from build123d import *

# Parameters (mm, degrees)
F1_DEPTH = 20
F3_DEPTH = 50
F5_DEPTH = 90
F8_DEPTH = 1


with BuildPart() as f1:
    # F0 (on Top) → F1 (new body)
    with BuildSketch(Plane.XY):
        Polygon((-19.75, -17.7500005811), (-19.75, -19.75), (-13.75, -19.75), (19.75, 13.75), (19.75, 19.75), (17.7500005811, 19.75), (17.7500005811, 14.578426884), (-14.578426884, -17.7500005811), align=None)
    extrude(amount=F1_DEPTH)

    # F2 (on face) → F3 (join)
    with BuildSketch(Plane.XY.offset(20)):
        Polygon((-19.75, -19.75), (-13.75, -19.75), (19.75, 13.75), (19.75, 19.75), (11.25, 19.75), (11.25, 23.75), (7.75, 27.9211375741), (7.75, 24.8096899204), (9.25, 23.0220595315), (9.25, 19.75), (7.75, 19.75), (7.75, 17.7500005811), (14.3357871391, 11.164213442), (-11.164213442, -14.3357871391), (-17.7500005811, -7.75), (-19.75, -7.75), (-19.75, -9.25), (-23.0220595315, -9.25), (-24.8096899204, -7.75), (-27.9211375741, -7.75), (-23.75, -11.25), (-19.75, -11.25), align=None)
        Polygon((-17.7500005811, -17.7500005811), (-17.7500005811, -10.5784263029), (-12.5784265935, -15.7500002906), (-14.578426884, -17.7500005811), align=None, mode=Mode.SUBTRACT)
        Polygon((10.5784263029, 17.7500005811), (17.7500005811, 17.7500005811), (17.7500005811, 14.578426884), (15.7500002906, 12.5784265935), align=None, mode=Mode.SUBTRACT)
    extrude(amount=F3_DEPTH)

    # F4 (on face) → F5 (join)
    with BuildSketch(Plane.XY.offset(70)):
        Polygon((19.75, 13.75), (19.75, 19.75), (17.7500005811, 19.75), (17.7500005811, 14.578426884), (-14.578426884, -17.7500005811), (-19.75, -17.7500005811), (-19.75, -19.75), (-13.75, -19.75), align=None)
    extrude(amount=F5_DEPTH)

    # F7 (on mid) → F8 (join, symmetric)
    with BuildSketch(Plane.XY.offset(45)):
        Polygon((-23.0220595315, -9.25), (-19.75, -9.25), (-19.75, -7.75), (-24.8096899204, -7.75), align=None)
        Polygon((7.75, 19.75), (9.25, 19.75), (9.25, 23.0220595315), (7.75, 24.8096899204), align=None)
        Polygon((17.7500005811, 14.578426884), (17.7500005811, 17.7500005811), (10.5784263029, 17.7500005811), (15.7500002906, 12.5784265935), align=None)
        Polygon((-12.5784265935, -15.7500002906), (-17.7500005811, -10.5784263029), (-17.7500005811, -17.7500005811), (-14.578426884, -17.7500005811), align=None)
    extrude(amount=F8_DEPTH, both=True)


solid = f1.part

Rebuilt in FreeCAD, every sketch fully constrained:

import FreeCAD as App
import Part
import Sketcher
from FreeCAD import Vector
Q = App.Units.Quantity

doc = App.newDocument("Part")
body = doc.addObject("PartDesign::Body", "Body")

# Sketch on XY plane
sketch1 = doc.addObject("Sketcher::SketchObject", "Sketch")
body.addObject(sketch1)
sketch1.AttachmentSupport = (doc.XY_Plane, [""])
sketch1.MapMode = "FlatFace"
sketch1.addGeometry([
    Part.LineSegment(Vector(-19.8, -17.8, 0), Vector(-19.8, -19.8, 0)),  # 0
    Part.LineSegment(Vector(-19.8, -19.8, 0), Vector(-13.8, -19.8, 0)),  # 1
    Part.LineSegment(Vector(-13.8, -19.8, 0), Vector(19.8, 13.8, 0)),  # 2
    Part.LineSegment(Vector(19.8, 13.8, 0), Vector(19.8, 19.8, 0)),  # 3
    Part.LineSegment(Vector(19.8, 19.8, 0), Vector(17.8, 19.8, 0)),  # 4
    Part.LineSegment(Vector(17.8, 19.8, 0), Vector(17.8, 14.6, 0)),  # 5
    Part.LineSegment(Vector(17.8, 14.6, 0), Vector(-14.6, -17.8, 0)),  # 6
    Part.LineSegment(Vector(-14.6, -17.8, 0), Vector(-19.8, -17.8, 0)),  # 7
], False)
sketch1.addConstraint([
    Sketcher.Constraint("Coincident", 0, 2, 1, 1),
    Sketcher.Constraint("Coincident", 1, 2, 2, 1),
    Sketcher.Constraint("Coincident", 2, 2, 3, 1),
    Sketcher.Constraint("Coincident", 3, 2, 4, 1),
    Sketcher.Constraint("Coincident", 4, 2, 5, 1),
    Sketcher.Constraint("Coincident", 5, 2, 6, 1),
    Sketcher.Constraint("Coincident", 6, 2, 7, 1),
    Sketcher.Constraint("Coincident", 7, 2, 0, 1),
    Sketcher.Constraint("Vertical", 0),
    Sketcher.Constraint("Horizontal", 1),
    Sketcher.Constraint("Vertical", 3),
    Sketcher.Constraint("Horizontal", 4),
    Sketcher.Constraint("Vertical", 5),
    Sketcher.Constraint("Horizontal", 7),
    Sketcher.Constraint("Symmetric", 0, 2, 3, 2, -1, 1),
    Sketcher.Constraint("Parallel", 2, 6),
    Sketcher.Constraint("Equal", 4, 0),
    Sketcher.Constraint("Equal", 1, 3),
    Sketcher.Constraint("Equal", 7, 5),
    Sketcher.Constraint("DistanceX", 1, 1, 1, 2, Q("6 mm")),
    Sketcher.Constraint("DistanceX", 4, 2, 4, 1, Q("1.999999 mm")),
    Sketcher.Constraint("DistanceX", 1, 2, 2, 2, Q("33.5 mm")),
    Sketcher.Constraint("Distance", 6, Q("45.719301 mm")),
])
pad1 = doc.addObject("PartDesign::Pad", "Pad")
body.addObject(pad1)
pad1.Profile = sketch1
pad1.Length = 20

# Sketch on XY plane
sketch2 = doc.addObject("Sketcher::SketchObject", "Sketch001")
body.addObject(sketch2)
sketch2.AttachmentSupport = (doc.XY_Plane, [""])
sketch2.MapMode = "FlatFace"
sketch2.AttachmentOffset = App.Placement(Vector(0, 0, 20), App.Rotation())
sketch2.addGeometry([
    Part.LineSegment(Vector(-19.8, -19.8, 0), Vector(-13.8, -19.8, 0)),  # 0
    Part.LineSegment(Vector(-13.8, -19.8, 0), Vector(19.8, 13.8, 0)),  # 1
    Part.LineSegment(Vector(19.8, 13.8, 0), Vector(19.8, 19.8, 0)),  # 2
    Part.LineSegment(Vector(19.8, 19.8, 0), Vector(11.2, 19.8, 0)),  # 3
    Part.LineSegment(Vector(11.2, 19.8, 0), Vector(11.2, 23.8, 0)),  # 4
    Part.LineSegment(Vector(11.2, 23.8, 0), Vector(7.8, 27.9, 0)),  # 5
    Part.LineSegment(Vector(7.8, 27.9, 0), Vector(7.8, 24.8, 0)),  # 6
    Part.LineSegment(Vector(7.8, 24.8, 0), Vector(9.2, 23, 0)),  # 7
    Part.LineSegment(Vector(9.2, 23, 0), Vector(9.2, 19.8, 0)),  # 8
    Part.LineSegment(Vector(9.2, 19.8, 0), Vector(7.8, 19.8, 0)),  # 9
    Part.LineSegment(Vector(7.8, 19.8, 0), Vector(7.8, 17.8, 0)),  # 10
    Part.LineSegment(Vector(7.8, 17.8, 0), Vector(14.3, 11.2, 0)),  # 11
    Part.LineSegment(Vector(14.3, 11.2, 0), Vector(-11.2, -14.3, 0)),  # 12
    Part.LineSegment(Vector(-11.2, -14.3, 0), Vector(-17.8, -7.8, 0)),  # 13
    Part.LineSegment(Vector(-17.8, -7.8, 0), Vector(-19.8, -7.8, 0)),  # 14
    Part.LineSegment(Vector(-19.8, -7.8, 0), Vector(-19.8, -9.2, 0)),  # 15
    Part.LineSegment(Vector(-19.8, -9.2, 0), Vector(-23, -9.2, 0)),  # 16
    Part.LineSegment(Vector(-23, -9.2, 0), Vector(-24.8, -7.8, 0)),  # 17
    Part.LineSegment(Vector(-24.8, -7.8, 0), Vector(-27.9, -7.8, 0)),  # 18
    Part.LineSegment(Vector(-27.9, -7.8, 0), Vector(-23.8, -11.2, 0)),  # 19
    Part.LineSegment(Vector(-23.8, -11.2, 0), Vector(-19.8, -11.2, 0)),  # 20
    Part.LineSegment(Vector(-19.8, -11.2, 0), Vector(-19.8, -19.8, 0)),  # 21
    Part.LineSegment(Vector(-14.6, -17.8, 0), Vector(-17.8, -17.8, 0)),  # 22
    Part.LineSegment(Vector(-17.8, -17.8, 0), Vector(-17.8, -10.6, 0)),  # 23
    Part.LineSegment(Vector(-17.8, -10.6, 0), Vector(-12.6, -15.8, 0)),  # 24
    Part.LineSegment(Vector(-12.6, -15.8, 0), Vector(-14.6, -17.8, 0)),  # 25
    Part.LineSegment(Vector(15.8, 12.6, 0), Vector(10.6, 17.8, 0)),  # 26
    Part.LineSegment(Vector(10.6, 17.8, 0), Vector(17.8, 17.8, 0)),  # 27
    Part.LineSegment(Vector(17.8, 17.8, 0), Vector(17.8, 14.6, 0)),  # 28
    Part.LineSegment(Vector(17.8, 14.6, 0), Vector(15.8, 12.6, 0)),  # 29
], False)
sketch2.addConstraint([
    Sketcher.Constraint("Coincident", 0, 2, 1, 1),
    Sketcher.Constraint("Coincident", 1, 2, 2, 1),
    Sketcher.Constraint("Coincident", 2, 2, 3, 1),
    Sketcher.Constraint("Coincident", 3, 2, 4, 1),
    Sketcher.Constraint("Coincident", 4, 2, 5, 1),
    Sketcher.Constraint("Coincident", 5, 2, 6, 1),
    Sketcher.Constraint("Coincident", 6, 2, 7, 1),
    Sketcher.Constraint("Coincident", 7, 2, 8, 1),
    Sketcher.Constraint("Coincident", 8, 2, 9, 1),
    Sketcher.Constraint("Coincident", 9, 2, 10, 1),
    Sketcher.Constraint("Coincident", 10, 2, 11, 1),
    Sketcher.Constraint("Coincident", 11, 2, 12, 1),
    Sketcher.Constraint("Coincident", 12, 2, 13, 1),
    Sketcher.Constraint("Coincident", 13, 2, 14, 1),
    Sketcher.Constraint("Coincident", 14, 2, 15, 1),
    Sketcher.Constraint("Coincident", 15, 2, 16, 1),
    Sketcher.Constraint("Coincident", 16, 2, 17, 1),
    Sketcher.Constraint("Coincident", 17, 2, 18, 1),
    Sketcher.Constraint("Coincident", 18, 2, 19, 1),
    Sketcher.Constraint("Coincident", 19, 2, 20, 1),
    Sketcher.Constraint("Coincident", 20, 2, 21, 1),
    Sketcher.Constraint("Coincident", 21, 2, 0, 1),
    Sketcher.Constraint("Coincident", 22, 2, 23, 1),
    Sketcher.Constraint("Coincident", 23, 2, 24, 1),
    Sketcher.Constraint("Coincident", 24, 2, 25, 1),
    Sketcher.Constraint("Coincident", 25, 2, 22, 1),
    Sketcher.Constraint("Coincident", 26, 2, 27, 1),
    Sketcher.Constraint("Coincident", 27, 2, 28, 1),
    Sketcher.Constraint("Coincident", 28, 2, 29, 1),
    Sketcher.Constraint("Coincident", 29, 2, 26, 1),
    Sketcher.Constraint("Horizontal", 0),
    Sketcher.Constraint("Vertical", 2),
    Sketcher.Constraint("Horizontal", 3),
    Sketcher.Constraint("Vertical", 4),
    Sketcher.Constraint("Vertical", 6),
    Sketcher.Constraint("Vertical", 8),
    Sketcher.Constraint("Horizontal", 9),
    Sketcher.Constraint("Vertical", 10),
    Sketcher.Constraint("Horizontal", 14),
    Sketcher.Constraint("Vertical", 15),
    Sketcher.Constraint("Horizontal", 16),
    Sketcher.Constraint("Horizontal", 18),
    Sketcher.Constraint("Horizontal", 20),
    Sketcher.Constraint("Vertical", 21),
    Sketcher.Constraint("Horizontal", 22),
    Sketcher.Constraint("Vertical", 23),
    Sketcher.Constraint("Horizontal", 27),
    Sketcher.Constraint("Vertical", 28),
    Sketcher.Constraint("Symmetric", 2, 2, 21, 2, -1, 1),
    Sketcher.Constraint("Symmetric", 22, 2, 27, 2, -1, 1),
    Sketcher.Constraint("Parallel", 5, 7),
    Sketcher.Constraint("Perpendicular", 1, 11),
    Sketcher.Constraint("Perpendicular", 11, 12),
    Sketcher.Constraint("Perpendicular", 12, 13),
    Sketcher.Constraint("Parallel", 17, 19),
    Sketcher.Constraint("Parallel", 13, 24),
    Sketcher.Constraint("Perpendicular", 24, 25),
    Sketcher.Constraint("Perpendicular", 25, 26),
    Sketcher.Constraint("Perpendicular", 26, 29),
    Sketcher.Constraint("Horizontal", 3, 2, 8, 2),
    Sketcher.Constraint("Horizontal", 14, 2, 17, 2),
    Sketcher.Constraint("Horizontal", 10, 2, 26, 2),
    Sketcher.Constraint("Vertical", 6, 2, 9, 2),
    Sketcher.Constraint("Vertical", 15, 2, 20, 2),
    Sketcher.Constraint("Vertical", 13, 2, 22, 2),
    Sketcher.Constraint("Equal", 0, 2),
    Sketcher.Constraint("Equal", 20, 4),
    Sketcher.Constraint("Equal", 18, 6),
    Sketcher.Constraint("Equal", 16, 8),
    Sketcher.Constraint("Equal", 14, 10),
    Sketcher.Constraint("Equal", 9, 15),
    Sketcher.Constraint("Equal", 3, 21),
    Sketcher.Constraint("Equal", 27, 23),
    Sketcher.Constraint("Equal", 22, 28),
    Sketcher.Constraint("Equal", 11, 13),
    Sketcher.Constraint("Equal", 7, 17),
    Sketcher.Constraint("DistanceX", 0, 1, 0, 2, Q("6 mm")),
    Sketcher.Constraint("DistanceX", 14, 2, 14, 1, Q("1.999999 mm")),
    Sketcher.Constraint("DistanceX", 20, 1, 20, 2, Q("4 mm")),
    Sketcher.Constraint("Angle", 5, Q("130 deg")),
    Sketcher.Constraint("DistanceX", 3, 2, 3, 1, Q("8.5 mm")),
    Sketcher.Constraint("DistanceX", 9, 2, 9, 1, Q("1.5 mm")),
    Sketcher.Constraint("DistanceX", 0, 2, 3, 2, Q("25 mm")),
    Sketcher.Constraint("DistanceX", 5, 2, 2, 2, Q("12 mm")),
    Sketcher.Constraint("DistanceY", 0, 2, 24, 2, Q("4 mm")),
    Sketcher.Constraint("DistanceX", 16, 2, 16, 1, Q("3.27206 mm")),
    Sketcher.Constraint("Distance", 11, Q("9.313709 mm")),
    Sketcher.Constraint("Distance", 24, Q("7.31371 mm")),
])
pad2 = doc.addObject("PartDesign::Pad", "Pad001")
body.addObject(pad2)
pad2.Profile = sketch2
pad2.Length = 50

# Sketch on XY plane
sketch3 = doc.addObject("Sketcher::SketchObject", "Sketch002")
body.addObject(sketch3)
sketch3.AttachmentSupport = (doc.XY_Plane, [""])
sketch3.MapMode = "FlatFace"
sketch3.AttachmentOffset = App.Placement(Vector(0, 0, 70), App.Rotation())
sketch3.addGeometry([
    Part.LineSegment(Vector(19.8, 13.8, 0), Vector(19.8, 19.8, 0)),  # 0
    Part.LineSegment(Vector(19.8, 19.8, 0), Vector(17.8, 19.8, 0)),  # 1
    Part.LineSegment(Vector(17.8, 19.8, 0), Vector(17.8, 14.6, 0)),  # 2
    Part.LineSegment(Vector(17.8, 14.6, 0), Vector(-14.6, -17.8, 0)),  # 3
    Part.LineSegment(Vector(-14.6, -17.8, 0), Vector(-19.8, -17.8, 0)),  # 4
    Part.LineSegment(Vector(-19.8, -17.8, 0), Vector(-19.8, -19.8, 0)),  # 5
    Part.LineSegment(Vector(-19.8, -19.8, 0), Vector(-13.8, -19.8, 0)),  # 6
    Part.LineSegment(Vector(-13.8, -19.8, 0), Vector(19.8, 13.8, 0)),  # 7
], False)
sketch3.addConstraint([
    Sketcher.Constraint("Coincident", 0, 2, 1, 1),
    Sketcher.Constraint("Coincident", 1, 2, 2, 1),
    Sketcher.Constraint("Coincident", 2, 2, 3, 1),
    Sketcher.Constraint("Coincident", 3, 2, 4, 1),
    Sketcher.Constraint("Coincident", 4, 2, 5, 1),
    Sketcher.Constraint("Coincident", 5, 2, 6, 1),
    Sketcher.Constraint("Coincident", 6, 2, 7, 1),
    Sketcher.Constraint("Coincident", 7, 2, 0, 1),
    Sketcher.Constraint("Vertical", 0),
    Sketcher.Constraint("Horizontal", 1),
    Sketcher.Constraint("Vertical", 2),
    Sketcher.Constraint("Horizontal", 4),
    Sketcher.Constraint("Vertical", 5),
    Sketcher.Constraint("Horizontal", 6),
    Sketcher.Constraint("Symmetric", 0, 2, 5, 2, -1, 1),
    Sketcher.Constraint("Parallel", 3, 7),
    Sketcher.Constraint("Equal", 6, 0),
    Sketcher.Constraint("Equal", 4, 2),
    Sketcher.Constraint("Equal", 1, 5),
    Sketcher.Constraint("DistanceX", 1, 2, 1, 1, Q("1.999999 mm")),
    Sketcher.Constraint("DistanceX", 6, 1, 6, 2, Q("6 mm")),
    Sketcher.Constraint("DistanceY", 3, 2, 1, 2, Q("37.500001 mm")),
    Sketcher.Constraint("Distance", 3, Q("45.719301 mm")),
])
pad3 = doc.addObject("PartDesign::Pad", "Pad002")
body.addObject(pad3)
pad3.Profile = sketch3
pad3.Length = 90

# Sketch on XY plane
sketch4 = doc.addObject("Sketcher::SketchObject", "Sketch003")
body.addObject(sketch4)
sketch4.AttachmentSupport = (doc.XY_Plane, [""])
sketch4.MapMode = "FlatFace"
sketch4.AttachmentOffset = App.Placement(Vector(0, 0, 45), App.Rotation())
sketch4.addGeometry([
    Part.LineSegment(Vector(-23, -9.2, 0), Vector(-19.8, -9.2, 0)),  # 0
    Part.LineSegment(Vector(-19.8, -9.2, 0), Vector(-19.8, -7.8, 0)),  # 1
    Part.LineSegment(Vector(-19.8, -7.8, 0), Vector(-24.8, -7.8, 0)),  # 2
    Part.LineSegment(Vector(-24.8, -7.8, 0), Vector(-23, -9.2, 0)),  # 3
    Part.LineSegment(Vector(7.8, 19.8, 0), Vector(9.2, 19.8, 0)),  # 4
    Part.LineSegment(Vector(9.2, 19.8, 0), Vector(9.2, 23, 0)),  # 5
    Part.LineSegment(Vector(9.2, 23, 0), Vector(7.8, 24.8, 0)),  # 6
    Part.LineSegment(Vector(7.8, 24.8, 0), Vector(7.8, 19.8, 0)),  # 7
    Part.LineSegment(Vector(17.8, 14.6, 0), Vector(17.8, 17.8, 0)),  # 8
    Part.LineSegment(Vector(17.8, 17.8, 0), Vector(10.6, 17.8, 0)),  # 9
    Part.LineSegment(Vector(10.6, 17.8, 0), Vector(15.8, 12.6, 0)),  # 10
    Part.LineSegment(Vector(15.8, 12.6, 0), Vector(17.8, 14.6, 0)),  # 11
    Part.LineSegment(Vector(-12.6, -15.8, 0), Vector(-17.8, -10.6, 0)),  # 12
    Part.LineSegment(Vector(-17.8, -10.6, 0), Vector(-17.8, -17.8, 0)),  # 13
    Part.LineSegment(Vector(-17.8, -17.8, 0), Vector(-14.6, -17.8, 0)),  # 14
    Part.LineSegment(Vector(-14.6, -17.8, 0), Vector(-12.6, -15.8, 0)),  # 15
], False)
sketch4.addConstraint([
    Sketcher.Constraint("Coincident", 0, 2, 1, 1),
    Sketcher.Constraint("Coincident", 1, 2, 2, 1),
    Sketcher.Constraint("Coincident", 2, 2, 3, 1),
    Sketcher.Constraint("Coincident", 3, 2, 0, 1),
    Sketcher.Constraint("Coincident", 4, 2, 5, 1),
    Sketcher.Constraint("Coincident", 5, 2, 6, 1),
    Sketcher.Constraint("Coincident", 6, 2, 7, 1),
    Sketcher.Constraint("Coincident", 7, 2, 4, 1),
    Sketcher.Constraint("Coincident", 8, 2, 9, 1),
    Sketcher.Constraint("Coincident", 9, 2, 10, 1),
    Sketcher.Constraint("Coincident", 10, 2, 11, 1),
    Sketcher.Constraint("Coincident", 11, 2, 8, 1),
    Sketcher.Constraint("Coincident", 12, 2, 13, 1),
    Sketcher.Constraint("Coincident", 13, 2, 14, 1),
    Sketcher.Constraint("Coincident", 14, 2, 15, 1),
    Sketcher.Constraint("Coincident", 15, 2, 12, 1),
    Sketcher.Constraint("Horizontal", 0),
    Sketcher.Constraint("Vertical", 1),
    Sketcher.Constraint("Horizontal", 2),
    Sketcher.Constraint("Horizontal", 4),
    Sketcher.Constraint("Vertical", 5),
    Sketcher.Constraint("Vertical", 7),
    Sketcher.Constraint("Vertical", 8),
    Sketcher.Constraint("Horizontal", 9),
    Sketcher.Constraint("Vertical", 13),
    Sketcher.Constraint("Horizontal", 14),
    Sketcher.Constraint("Symmetric", 8, 2, 13, 2, -1, 1),
    Sketcher.Constraint("Perpendicular", 10, 11),
    Sketcher.Constraint("Perpendicular", 11, 12),
    Sketcher.Constraint("Perpendicular", 12, 15),
    Sketcher.Constraint("Equal", 4, 1),
    Sketcher.Constraint("Equal", 0, 5),
    Sketcher.Constraint("Equal", 2, 7),
    Sketcher.Constraint("Equal", 14, 8),
    Sketcher.Constraint("Equal", 9, 13),
    Sketcher.Constraint("Equal", 10, 12),
    Sketcher.Constraint("Angle", 3, Q("-40 deg")),
    Sketcher.Constraint("DistanceX", 4, 1, 4, 2, Q("1.5 mm")),
    Sketcher.Constraint("DistanceX", 1, 2, 4, 2, Q("29 mm")),
    Sketcher.Constraint("DistanceY", 0, 2, 4, 2, Q("29 mm")),
    Sketcher.Constraint("DistanceY", 8, 2, 4, 2, Q("1.999999 mm")),
    Sketcher.Constraint("DistanceX", 7, 2, 8, 2, Q("10.000001 mm")),
    Sketcher.Constraint("DistanceX", 10, 2, 8, 2, Q("2 mm")),
    Sketcher.Constraint("DistanceX", 0, 2, 12, 2, Q("1.999999 mm")),
    Sketcher.Constraint("DistanceY", 13, 2, 1, 2, Q("10.000001 mm")),
    Sketcher.Constraint("DistanceX", 0, 1, 0, 2, Q("3.27206 mm")),
    Sketcher.Constraint("Distance", 10, Q("7.31371 mm")),
])
pad4 = doc.addObject("PartDesign::Pad", "Pad003")
body.addObject(pad4)
pad4.Profile = sketch4
pad4.Length = 2
pad4.Midplane = True

doc.recompute()
